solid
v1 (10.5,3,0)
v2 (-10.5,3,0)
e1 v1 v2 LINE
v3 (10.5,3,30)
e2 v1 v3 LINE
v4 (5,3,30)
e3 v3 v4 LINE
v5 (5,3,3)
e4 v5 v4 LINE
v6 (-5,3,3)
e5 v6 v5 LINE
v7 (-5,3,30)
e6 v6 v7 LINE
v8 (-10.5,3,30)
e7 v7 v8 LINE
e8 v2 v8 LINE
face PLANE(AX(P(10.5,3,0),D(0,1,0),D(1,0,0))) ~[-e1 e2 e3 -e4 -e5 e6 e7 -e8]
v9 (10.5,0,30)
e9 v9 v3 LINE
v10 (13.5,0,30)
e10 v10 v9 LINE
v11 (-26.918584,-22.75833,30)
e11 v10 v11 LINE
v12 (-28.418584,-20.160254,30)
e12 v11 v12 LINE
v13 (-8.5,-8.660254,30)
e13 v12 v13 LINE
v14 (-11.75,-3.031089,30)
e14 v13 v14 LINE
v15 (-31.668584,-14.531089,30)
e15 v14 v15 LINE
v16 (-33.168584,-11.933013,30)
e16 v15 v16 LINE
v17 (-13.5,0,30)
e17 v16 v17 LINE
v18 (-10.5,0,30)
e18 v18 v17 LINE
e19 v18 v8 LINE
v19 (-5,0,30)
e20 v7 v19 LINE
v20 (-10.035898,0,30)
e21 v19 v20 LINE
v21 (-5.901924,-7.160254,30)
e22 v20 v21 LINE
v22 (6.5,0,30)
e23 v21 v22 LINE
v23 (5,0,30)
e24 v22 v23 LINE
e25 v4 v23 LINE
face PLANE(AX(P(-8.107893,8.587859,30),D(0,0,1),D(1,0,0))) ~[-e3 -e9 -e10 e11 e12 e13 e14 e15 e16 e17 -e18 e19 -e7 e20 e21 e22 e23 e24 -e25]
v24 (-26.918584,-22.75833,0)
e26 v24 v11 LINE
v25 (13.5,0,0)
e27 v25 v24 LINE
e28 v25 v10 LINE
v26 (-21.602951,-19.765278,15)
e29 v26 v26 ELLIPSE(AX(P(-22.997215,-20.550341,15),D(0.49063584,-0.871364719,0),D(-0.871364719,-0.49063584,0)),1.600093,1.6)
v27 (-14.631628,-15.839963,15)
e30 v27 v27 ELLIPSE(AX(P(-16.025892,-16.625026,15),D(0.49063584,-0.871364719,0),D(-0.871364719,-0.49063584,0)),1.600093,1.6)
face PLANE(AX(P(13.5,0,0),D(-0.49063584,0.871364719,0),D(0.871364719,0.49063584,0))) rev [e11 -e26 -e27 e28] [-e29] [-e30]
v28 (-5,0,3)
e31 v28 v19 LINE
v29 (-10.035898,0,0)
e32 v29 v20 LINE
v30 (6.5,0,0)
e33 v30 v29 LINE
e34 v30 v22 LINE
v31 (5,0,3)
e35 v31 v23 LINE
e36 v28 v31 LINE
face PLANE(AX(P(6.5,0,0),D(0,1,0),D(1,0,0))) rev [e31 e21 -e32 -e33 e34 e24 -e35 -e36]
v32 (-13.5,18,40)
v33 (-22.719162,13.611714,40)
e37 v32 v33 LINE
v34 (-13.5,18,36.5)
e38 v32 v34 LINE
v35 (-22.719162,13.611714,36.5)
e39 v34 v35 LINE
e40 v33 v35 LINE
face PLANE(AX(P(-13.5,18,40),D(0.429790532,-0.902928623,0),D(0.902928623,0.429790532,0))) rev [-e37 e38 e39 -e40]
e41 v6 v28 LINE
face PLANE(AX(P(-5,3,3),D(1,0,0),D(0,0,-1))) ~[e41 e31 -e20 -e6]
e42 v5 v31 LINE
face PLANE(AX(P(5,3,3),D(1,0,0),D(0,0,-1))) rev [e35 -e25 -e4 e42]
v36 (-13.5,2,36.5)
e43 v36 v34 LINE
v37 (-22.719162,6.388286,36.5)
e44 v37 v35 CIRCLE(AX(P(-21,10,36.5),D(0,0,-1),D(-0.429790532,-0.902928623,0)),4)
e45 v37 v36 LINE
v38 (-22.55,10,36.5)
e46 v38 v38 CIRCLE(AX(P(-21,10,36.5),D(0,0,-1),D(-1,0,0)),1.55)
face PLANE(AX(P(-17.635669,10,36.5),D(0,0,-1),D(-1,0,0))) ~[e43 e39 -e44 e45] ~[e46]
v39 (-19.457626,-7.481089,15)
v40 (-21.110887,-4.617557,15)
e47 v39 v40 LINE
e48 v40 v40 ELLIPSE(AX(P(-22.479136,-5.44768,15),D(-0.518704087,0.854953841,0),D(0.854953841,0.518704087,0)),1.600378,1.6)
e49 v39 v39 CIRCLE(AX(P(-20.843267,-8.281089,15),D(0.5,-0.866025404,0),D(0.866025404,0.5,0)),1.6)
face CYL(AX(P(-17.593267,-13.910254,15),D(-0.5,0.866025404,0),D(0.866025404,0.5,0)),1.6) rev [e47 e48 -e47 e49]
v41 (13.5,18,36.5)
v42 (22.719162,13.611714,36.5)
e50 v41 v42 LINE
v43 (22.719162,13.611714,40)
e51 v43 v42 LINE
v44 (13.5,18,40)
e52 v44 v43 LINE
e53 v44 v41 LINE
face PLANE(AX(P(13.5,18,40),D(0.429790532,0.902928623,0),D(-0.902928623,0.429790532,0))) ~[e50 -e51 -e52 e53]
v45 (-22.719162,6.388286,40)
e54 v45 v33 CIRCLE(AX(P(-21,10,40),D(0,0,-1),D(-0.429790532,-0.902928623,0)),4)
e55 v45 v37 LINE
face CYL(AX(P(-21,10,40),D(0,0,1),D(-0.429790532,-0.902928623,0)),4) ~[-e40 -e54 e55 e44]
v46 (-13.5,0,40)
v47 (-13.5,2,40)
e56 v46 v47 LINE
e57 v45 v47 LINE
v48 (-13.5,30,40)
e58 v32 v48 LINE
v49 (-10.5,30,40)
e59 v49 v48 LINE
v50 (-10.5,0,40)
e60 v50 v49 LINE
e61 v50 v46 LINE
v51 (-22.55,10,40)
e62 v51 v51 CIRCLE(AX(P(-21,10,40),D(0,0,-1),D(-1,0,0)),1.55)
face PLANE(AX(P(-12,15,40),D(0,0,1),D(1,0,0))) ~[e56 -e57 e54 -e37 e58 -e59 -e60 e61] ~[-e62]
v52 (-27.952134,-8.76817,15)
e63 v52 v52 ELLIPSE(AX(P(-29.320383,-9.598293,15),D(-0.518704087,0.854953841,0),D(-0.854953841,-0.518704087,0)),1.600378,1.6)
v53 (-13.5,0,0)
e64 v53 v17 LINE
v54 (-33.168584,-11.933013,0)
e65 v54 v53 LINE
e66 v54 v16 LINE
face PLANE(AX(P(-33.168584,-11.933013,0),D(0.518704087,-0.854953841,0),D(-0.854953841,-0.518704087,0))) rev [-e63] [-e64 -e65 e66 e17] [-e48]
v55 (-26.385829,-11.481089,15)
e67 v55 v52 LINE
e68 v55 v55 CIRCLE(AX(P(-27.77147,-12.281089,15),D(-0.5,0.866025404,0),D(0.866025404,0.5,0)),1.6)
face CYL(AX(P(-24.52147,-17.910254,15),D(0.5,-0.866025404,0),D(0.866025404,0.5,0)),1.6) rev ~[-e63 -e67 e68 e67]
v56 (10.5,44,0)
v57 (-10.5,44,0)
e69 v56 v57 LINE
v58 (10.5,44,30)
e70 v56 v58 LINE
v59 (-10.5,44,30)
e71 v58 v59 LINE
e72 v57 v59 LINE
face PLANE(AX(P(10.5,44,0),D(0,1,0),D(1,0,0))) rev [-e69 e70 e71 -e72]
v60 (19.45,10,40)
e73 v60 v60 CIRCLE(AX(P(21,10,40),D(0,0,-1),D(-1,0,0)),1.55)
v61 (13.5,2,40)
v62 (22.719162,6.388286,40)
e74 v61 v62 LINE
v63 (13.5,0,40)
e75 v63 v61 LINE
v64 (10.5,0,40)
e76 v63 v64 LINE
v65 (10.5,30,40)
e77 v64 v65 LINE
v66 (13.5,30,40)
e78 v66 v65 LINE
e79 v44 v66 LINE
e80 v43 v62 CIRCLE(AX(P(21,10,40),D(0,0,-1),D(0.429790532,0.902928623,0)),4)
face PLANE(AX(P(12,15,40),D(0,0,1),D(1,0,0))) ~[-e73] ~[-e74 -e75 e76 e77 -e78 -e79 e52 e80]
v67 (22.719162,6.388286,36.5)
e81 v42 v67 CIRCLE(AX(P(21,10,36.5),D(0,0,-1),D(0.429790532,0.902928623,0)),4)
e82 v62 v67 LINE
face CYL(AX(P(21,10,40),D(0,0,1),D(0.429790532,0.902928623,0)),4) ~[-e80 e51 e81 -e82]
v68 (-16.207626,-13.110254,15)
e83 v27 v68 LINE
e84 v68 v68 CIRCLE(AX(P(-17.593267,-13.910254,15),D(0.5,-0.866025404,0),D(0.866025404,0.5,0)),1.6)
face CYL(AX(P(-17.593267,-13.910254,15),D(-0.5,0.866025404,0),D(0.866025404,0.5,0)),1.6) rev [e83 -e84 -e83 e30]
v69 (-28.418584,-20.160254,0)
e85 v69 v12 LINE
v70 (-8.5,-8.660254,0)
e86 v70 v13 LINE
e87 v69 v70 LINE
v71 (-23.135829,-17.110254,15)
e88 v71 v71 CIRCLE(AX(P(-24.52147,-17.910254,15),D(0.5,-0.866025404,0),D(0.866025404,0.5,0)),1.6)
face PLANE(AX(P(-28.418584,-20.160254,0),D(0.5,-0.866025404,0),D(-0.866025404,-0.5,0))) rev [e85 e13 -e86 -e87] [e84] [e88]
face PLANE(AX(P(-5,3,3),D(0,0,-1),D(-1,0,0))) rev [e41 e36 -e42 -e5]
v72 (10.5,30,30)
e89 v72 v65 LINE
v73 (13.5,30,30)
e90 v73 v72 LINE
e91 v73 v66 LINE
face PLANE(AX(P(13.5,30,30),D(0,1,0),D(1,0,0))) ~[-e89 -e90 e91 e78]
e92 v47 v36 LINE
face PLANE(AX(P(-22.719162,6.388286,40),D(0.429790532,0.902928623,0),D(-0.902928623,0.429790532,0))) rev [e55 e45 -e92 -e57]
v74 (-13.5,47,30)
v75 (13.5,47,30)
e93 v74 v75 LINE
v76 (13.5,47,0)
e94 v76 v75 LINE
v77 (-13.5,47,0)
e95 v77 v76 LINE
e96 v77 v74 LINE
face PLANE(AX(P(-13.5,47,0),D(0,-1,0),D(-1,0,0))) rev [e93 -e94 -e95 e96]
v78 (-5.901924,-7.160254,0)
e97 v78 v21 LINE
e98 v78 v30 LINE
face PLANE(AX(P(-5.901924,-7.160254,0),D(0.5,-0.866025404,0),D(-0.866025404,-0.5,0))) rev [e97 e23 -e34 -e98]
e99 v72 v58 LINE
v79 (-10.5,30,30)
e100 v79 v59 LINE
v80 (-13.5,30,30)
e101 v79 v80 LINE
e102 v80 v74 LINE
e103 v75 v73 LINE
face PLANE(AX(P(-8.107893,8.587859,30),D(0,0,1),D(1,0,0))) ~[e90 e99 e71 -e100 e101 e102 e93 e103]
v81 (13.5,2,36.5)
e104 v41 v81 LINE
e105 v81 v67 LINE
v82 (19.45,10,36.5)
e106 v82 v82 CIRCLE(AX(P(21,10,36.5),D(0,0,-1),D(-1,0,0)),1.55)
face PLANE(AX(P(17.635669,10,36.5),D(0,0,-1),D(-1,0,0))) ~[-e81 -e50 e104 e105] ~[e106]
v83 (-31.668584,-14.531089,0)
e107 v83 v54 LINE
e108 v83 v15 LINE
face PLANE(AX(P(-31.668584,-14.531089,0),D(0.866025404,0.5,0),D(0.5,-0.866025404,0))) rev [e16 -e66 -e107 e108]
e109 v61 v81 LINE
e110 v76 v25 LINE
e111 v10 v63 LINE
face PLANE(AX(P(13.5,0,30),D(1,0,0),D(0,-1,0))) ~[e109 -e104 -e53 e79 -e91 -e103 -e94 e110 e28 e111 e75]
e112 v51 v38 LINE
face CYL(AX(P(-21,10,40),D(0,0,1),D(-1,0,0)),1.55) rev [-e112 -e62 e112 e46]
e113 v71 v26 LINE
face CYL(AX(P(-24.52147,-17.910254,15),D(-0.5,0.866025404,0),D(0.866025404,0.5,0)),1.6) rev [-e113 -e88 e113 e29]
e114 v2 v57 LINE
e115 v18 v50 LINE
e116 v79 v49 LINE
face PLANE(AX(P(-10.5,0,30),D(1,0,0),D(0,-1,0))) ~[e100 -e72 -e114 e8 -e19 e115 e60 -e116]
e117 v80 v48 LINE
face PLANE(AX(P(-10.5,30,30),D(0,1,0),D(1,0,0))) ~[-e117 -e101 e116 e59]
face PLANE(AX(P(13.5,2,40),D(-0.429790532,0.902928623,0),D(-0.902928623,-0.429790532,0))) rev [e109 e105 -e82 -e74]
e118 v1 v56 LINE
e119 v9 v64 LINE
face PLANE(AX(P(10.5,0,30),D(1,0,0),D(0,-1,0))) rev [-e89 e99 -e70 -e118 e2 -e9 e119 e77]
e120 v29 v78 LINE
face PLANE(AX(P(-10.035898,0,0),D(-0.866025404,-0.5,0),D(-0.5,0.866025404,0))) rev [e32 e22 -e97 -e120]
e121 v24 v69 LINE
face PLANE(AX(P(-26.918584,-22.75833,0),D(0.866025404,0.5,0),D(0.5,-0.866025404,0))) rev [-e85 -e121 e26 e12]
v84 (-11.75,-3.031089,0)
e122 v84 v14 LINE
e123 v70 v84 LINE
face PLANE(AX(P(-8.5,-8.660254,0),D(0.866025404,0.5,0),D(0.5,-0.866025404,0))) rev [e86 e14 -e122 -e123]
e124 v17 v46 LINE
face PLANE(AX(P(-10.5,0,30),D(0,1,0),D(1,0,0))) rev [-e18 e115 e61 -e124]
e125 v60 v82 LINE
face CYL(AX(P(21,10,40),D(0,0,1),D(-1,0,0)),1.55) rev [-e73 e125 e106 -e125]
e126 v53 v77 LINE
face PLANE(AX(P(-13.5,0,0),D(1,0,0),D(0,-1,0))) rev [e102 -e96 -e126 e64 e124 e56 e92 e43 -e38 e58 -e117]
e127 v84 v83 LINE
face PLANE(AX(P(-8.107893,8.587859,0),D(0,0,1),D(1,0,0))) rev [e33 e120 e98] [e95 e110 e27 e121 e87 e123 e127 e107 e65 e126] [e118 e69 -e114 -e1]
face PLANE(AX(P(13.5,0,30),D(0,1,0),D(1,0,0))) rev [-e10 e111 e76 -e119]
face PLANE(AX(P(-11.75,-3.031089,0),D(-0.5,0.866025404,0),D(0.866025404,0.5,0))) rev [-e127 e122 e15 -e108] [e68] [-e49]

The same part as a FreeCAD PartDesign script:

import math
import FreeCAD as App
import Part
import Sketcher
from FreeCAD import Vector
Q = App.Units.Quantity

doc = App.newDocument("Part")
body = doc.addObject("PartDesign::Body", "Body")

# Sketch on XY plane
sketch1 = body.newObject("Sketcher::SketchObject", "Sketch")
sketch1.AttachmentSupport = (doc.getObject("XY_Plane"), [""])
sketch1.MapMode = "FlatFace"
sketch1.addGeometry(Part.LineSegment(Vector(13.5, 0, 0), Vector(13.5, 47, 0)), False)
sketch1.addGeometry(Part.LineSegment(Vector(13.5, 47, 0), Vector(-13.5, 47, 0)), False)
sketch1.addGeometry(Part.LineSegment(Vector(-13.5, 47, 0), Vector(-13.5, 0, 0)), False)
sketch1.addGeometry(Part.LineSegment(Vector(-13.5, 0, 0), Vector(26.9, -22.8, 0)), False)
sketch1.addGeometry(Part.LineSegment(Vector(26.9, -22.8, 0), Vector(28.4, -20.2, 0)), False)
sketch1.addGeometry(Part.LineSegment(Vector(28.4, -20.2, 0), Vector(8.5, -8.7, 0)), False)
sketch1.addGeometry(Part.LineSegment(Vector(8.5, -8.7, 0), Vector(11.8, -3, 0)), False)
sketch1.addGeometry(Part.LineSegment(Vector(11.8, -3, 0), Vector(31.7, -14.5, 0)), False)
sketch1.addGeometry(Part.LineSegment(Vector(31.7, -14.5, 0), Vector(33.2, -11.9, 0)), False)
sketch1.addGeometry(Part.LineSegment(Vector(33.2, -11.9, 0), Vector(13.5, 0, 0)), False)
sketch1.addGeometry(Part.LineSegment(Vector(5.9, -7.2, 0), Vector(-6.5, 0, 0)), False)
sketch1.addGeometry(Part.LineSegment(Vector(-6.5, 0, 0), Vector(10, 0, 0)), False)
sketch1.addGeometry(Part.LineSegment(Vector(10, 0, 0), Vector(5.9, -7.2, 0)), False)
sketch1.addGeometry(Part.LineSegment(Vector(10.5, 3, 0), Vector(-10.5, 3, 0)), False)
sketch1.addGeometry(Part.LineSegment(Vector(-10.5, 3, 0), Vector(-10.5, 44, 0)), False)
sketch1.addGeometry(Part.LineSegment(Vector(-10.5, 44, 0), Vector(10.5, 44, 0)), False)
sketch1.addGeometry(Part.LineSegment(Vector(10.5, 44, 0), Vector(10.5, 3, 0)), False)
sketch1.addConstraint(Sketcher.Constraint("Coincident", 0, 2, 1, 1))
sketch1.addConstraint(Sketcher.Constraint("Coincident", 1, 2, 2, 1))
sketch1.addConstraint(Sketcher.Constraint("Coincident", 2, 2, 3, 1))
sketch1.addConstraint(Sketcher.Constraint("Coincident", 3, 2, 4, 1))
sketch1.addConstraint(Sketcher.Constraint("Coincident", 4, 2, 5, 1))
sketch1.addConstraint(Sketcher.Constraint("Coincident", 5, 2, 6, 1))
sketch1.addConstraint(Sketcher.Constraint("Coincident", 6, 2, 7, 1))
sketch1.addConstraint(Sketcher.Constraint("Coincident", 7, 2, 8, 1))
sketch1.addConstraint(Sketcher.Constraint("Coincident", 8, 2, 9, 1))
sketch1.addConstraint(Sketcher.Constraint("Coincident", 9, 2, 0, 1))
sketch1.addConstraint(Sketcher.Constraint("Coincident", 10, 2, 11, 1))
sketch1.addConstraint(Sketcher.Constraint("Coincident", 11, 2, 12, 1))
sketch1.addConstraint(Sketcher.Constraint("Coincident", 12, 2, 10, 1))
sketch1.addConstraint(Sketcher.Constraint("Coincident", 13, 2, 14, 1))
sketch1.addConstraint(Sketcher.Constraint("Coincident", 14, 2, 15, 1))
sketch1.addConstraint(Sketcher.Constraint("Coincident", 15, 2, 16, 1))
sketch1.addConstraint(Sketcher.Constraint("Coincident", 16, 2, 13, 1))
sketch1.addConstraint(Sketcher.Constraint("Vertical", 0))
sketch1.addConstraint(Sketcher.Constraint("Horizontal", 1))
sketch1.addConstraint(Sketcher.Constraint("Vertical", 2))
sketch1.addConstraint(Sketcher.Constraint("Horizontal", 11))
sketch1.addConstraint(Sketcher.Constraint("Horizontal", 13))
sketch1.addConstraint(Sketcher.Constraint("Vertical", 14))
sketch1.addConstraint(Sketcher.Constraint("Horizontal", 15))
sketch1.addConstraint(Sketcher.Constraint("Vertical", 16))
sketch1.addConstraint(Sketcher.Constraint("Symmetric", 2, 2, 9, 2, -1, 1))
sketch1.addConstraint(Sketcher.Constraint("PointOnObject", 2, 2, -1))
sketch1.addConstraint(Sketcher.Constraint("PointOnObject", 10, 2, -1))
sketch1.addConstraint(Sketcher.Constraint("Perpendicular", 4, 5))
sketch1.addConstraint(Sketcher.Constraint("Perpendicular", 5, 6))
sketch1.addConstraint(Sketcher.Constraint("Perpendicular", 6, 7))
sketch1.addConstraint(Sketcher.Constraint("Perpendicular", 7, 8))
sketch1.addConstraint(Sketcher.Constraint("Perpendicular", 8, 10))
sketch1.addConstraint(Sketcher.Constraint("Perpendicular", 10, 12))
sketch1.addConstraint(Sketcher.Constraint("Equal", 5, 7))
sketch1.addConstraint(Sketcher.Constraint("Equal", 4, 8))
sketch1.addConstraint(Sketcher.Constraint("DistanceX", 1, 2, 1, 1, 27.0))
sketch1.addConstraint(Sketcher.Constraint("DistanceX", 13, 2, 13, 1, 21.0))
sketch1.addConstraint(Sketcher.Constraint("DistanceY", 0, 1, 0, 2, 47.0))
sketch1.addConstraint(Sketcher.Constraint("DistanceY", 14, 1, 14, 2, 41.0))
sketch1.addConstraint(Sketcher.Constraint("Angle", 4, Q("60 deg")))
sketch1.addConstraint(Sketcher.Constraint("Distance", 4, 3.0))
sketch1.addConstraint(Sketcher.Constraint("Distance", 5, 23.0))
sketch1.addConstraint(Sketcher.Constraint("DistanceY", -1, 1, 13, 2, 3.0))
sketch1.addConstraint(Sketcher.Constraint("DistanceX", 2, 2, 5, 2, 22.0))
sketch1.addConstraint(Sketcher.Constraint("DistanceX", 2, 2, 10, 2, 7.0))
sketch1.addConstraint(Sketcher.Constraint("DistanceX", 2, 2, 13, 2, 3.0))
sketch1.addConstraint(Sketcher.Constraint("Distance", 6, 6.5))
sketch1.addConstraint(Sketcher.Constraint("DistanceY", 5, 2, 12, 2, 1.5))
sketch1.addConstraint(Sketcher.Constraint("DistanceX", 11, 1, 11, 2, 16.535898))
pad1 = body.newObject("PartDesign::Pad", "Pad")
pad1.Profile = sketch1
pad1.Length = 30

# Sketch on XZ plane
sketch2 = body.newObject("Sketcher::SketchObject", "Sketch001")
sketch2.AttachmentSupport = (doc.getObject("XZ_Plane"), [""])
sketch2.MapMode = "FlatFace"
sketch2.AttachmentOffset = App.Placement(Vector(0, 0, -3), App.Rotation())
sketch2.addGeometry(Part.LineSegment(Vector(5, 30, 0), Vector(5, 3, 0)), False)
sketch2.addGeometry(Part.LineSegment(Vector(5, 3, 0), Vector(-5, 3, 0)), False)
sketch2.addGeometry(Part.LineSegment(Vector(-5, 3, 0), Vector(-5, 30, 0)), False)
sketch2.addGeometry(Part.LineSegment(Vector(-5, 30, 0), Vector(5, 30, 0)), False)
sketch2.addConstraint(Sketcher.Constraint("Coincident", 0, 2, 1, 1))
sketch2.addConstraint(Sketcher.Constraint("Coincident", 1, 2, 2, 1))
sketch2.addConstraint(Sketcher.Constraint("Coincident", 2, 2, 3, 1))
sketch2.addConstraint(Sketcher.Constraint("Coincident", 3, 2, 0, 1))
sketch2.addConstraint(Sketcher.Constraint("Vertical", 0))
sketch2.addConstraint(Sketcher.Constraint("Horizontal", 1))
sketch2.addConstraint(Sketcher.Constraint("Vertical", 2))
sketch2.addConstraint(Sketcher.Constraint("Horizontal", 3))
sketch2.addConstraint(Sketcher.Constraint("DistanceX", 1, 2, 1, 1, 10.0))
sketch2.addConstraint(Sketcher.Constraint("DistanceY", 0, 2, 0, 1, 27.0))
sketch2.addConstraint(Sketcher.Constraint("DistanceX", -1, 1, 0, 2, 5.0))
sketch2.addConstraint(Sketcher.Constraint("DistanceY", -1, 1, 0, 2, 3.0))
pocket1 = body.newObject("PartDesign::Pocket", "Pocket")
pocket1.Profile = sketch2
pocket1.Length = 3.1
pocket1.Reversed = True

# Sketch on an angled plane
sketch3 = body.newObject("Sketcher::SketchObject", "Sketch002")
sketch3.Placement = App.Placement(Vector(-1.625, -2.814583, 0), App.Rotation(Vector(-0.866025404, 0.5, 0), Vector(0, 0, 1), Vector(0.5, 0.866025404, 0), "ZXY"))
sketch3.addGeometry(Part.Circle(Vector(-30.2, 15, 0), Vector(0, 0, 1), 1.6), False)
sketch3.addGeometry(Part.Circle(Vector(-22.2, 15, 0), Vector(0, 0, 1), 1.6), False)
sketch3.addConstraint(Sketcher.Constraint("Equal", 0, 1))
sketch3.addConstraint(Sketcher.Constraint("Horizontal", 0, 3, 1, 3))
sketch3.addConstraint(Sketcher.Constraint("Diameter", 0, 3.2))
sketch3.addConstraint(Sketcher.Constraint("DistanceY", -1, 1, 0, 3, 15.0))
sketch3.addConstraint(Sketcher.Constraint("DistanceX", 0, 3, 1, 3, 8.0))
sketch3.addConstraint(Sketcher.Constraint("DistanceX", 0, 3, -1, 1, 30.191343))
pocket2 = body.newObject("PartDesign::Pocket", "Pocket001")
pocket2.Profile = sketch3
pocket2.Length = 25
pocket2.Midplane = True

# Sketch on XY plane
sketch4 = body.newObject("Sketcher::SketchObject", "Sketch003")
sketch4.AttachmentSupport = (doc.getObject("XY_Plane"), [""])
sketch4.MapMode = "FlatFace"
sketch4.AttachmentOffset = App.Placement(Vector(0, 0, 30), App.Rotation())
sketch4.addGeometry(Part.LineSegment(Vector(-13.5, 30, 0), Vector(-13.5, 0, 0)), False)
sketch4.addGeometry(Part.LineSegment(Vector(-13.5, 0, 0), Vector(-10.5, 0, 0)), False)
sketch4.addGeometry(Part.LineSegment(Vector(-10.5, 0, 0), Vector(-10.5, 30, 0)), False)
sketch4.addGeometry(Part.LineSegment(Vector(-10.5, 30, 0), Vector(-13.5, 30, 0)), False)
sketch4.addGeometry(Part.LineSegment(Vector(10.5, 30, 0), Vector(10.5, 0, 0)), False)
sketch4.addGeometry(Part.LineSegment(Vector(10.5, 0, 0), Vector(13.5, 0, 0)), False)
sketch4.addGeometry(Part.LineSegment(Vector(13.5, 0, 0), Vector(13.5, 30, 0)), False)
sketch4.addGeometry(Part.LineSegment(Vector(13.5, 30, 0), Vector(10.5, 30, 0)), False)
sketch4.addConstraint(Sketcher.Constraint("Coincident", 0, 2, 1, 1))
sketch4.addConstraint(Sketcher.Constraint("Coincident", 1, 2, 2, 1))
sketch4.addConstraint(Sketcher.Constraint("Coincident", 2, 2, 3, 1))
sketch4.addConstraint(Sketcher.Constraint("Coincident", 3, 2, 0, 1))
sketch4.addConstraint(Sketcher.Constraint("Coincident", 4, 2, 5, 1))
sketch4.addConstraint(Sketcher.Constraint("Coincident", 5, 2, 6, 1))
sketch4.addConstraint(Sketcher.Constraint("Coincident", 6, 2, 7, 1))
sketch4.addConstraint(Sketcher.Constraint("Coincident", 7, 2, 4, 1))
sketch4.addConstraint(Sketcher.Constraint("Vertical", 0))
sketch4.addConstraint(Sketcher.Constraint("Horizontal", 1))
sketch4.addConstraint(Sketcher.Constraint("Vertical", 2))
sketch4.addConstraint(Sketcher.Constraint("Horizontal", 3))
sketch4.addConstraint(Sketcher.Constraint("Vertical", 4))
sketch4.addConstraint(Sketcher.Constraint("Horizontal", 5))
sketch4.addConstraint(Sketcher.Constraint("Vertical", 6))
sketch4.addConstraint(Sketcher.Constraint("Horizontal", 7))
sketch4.addConstraint(Sketcher.Constraint("Symmetric", 1, 2, 4, 2, -1, 1))
sketch4.addConstraint(Sketcher.Constraint("Symmetric", 0, 2, 5, 2, -2))
sketch4.addConstraint(Sketcher.Constraint("Horizontal", 3, 2, 6, 2))
sketch4.addConstraint(Sketcher.Constraint("DistanceX", 1, 1, 1, 2, 3.0))
sketch4.addConstraint(Sketcher.Constraint("DistanceY", 0, 2, 0, 1, 30.0))
sketch4.addConstraint(Sketcher.Constraint("DistanceX", 1, 2, 4, 2, 21.0))
pad2 = body.newObject("PartDesign::Pad", "Pad001")
pad2.Profile = sketch4
pad2.Length = 10

# Sketch on XY plane
sketch5 = body.newObject("Sketcher::SketchObject", "Sketch004")
sketch5.AttachmentSupport = (doc.getObject("XY_Plane"), [""])
sketch5.MapMode = "FlatFace"
sketch5.AttachmentOffset = App.Placement(Vector(0, 0, 40), App.Rotation())
sketch5.addGeometry(Part.LineSegment(Vector(-13.5, 2, 0), Vector(-13.5, 18, 0)), False)
sketch5.addGeometry(Part.LineSegment(Vector(-13.5, 18, 0), Vector(-22.7, 13.6, 0)), False)
sketch5.addGeometry(Part.ArcOfCircle(Part.Circle(Vector(-21, 10, 0), Vector(0, 0, 1), 4), math.radians(115), math.radians(245)), False)
sketch5.addGeometry(Part.LineSegment(Vector(-22.7, 6.4, 0), Vector(-13.5, 2, 0)), False)
sketch5.addGeometry(Part.Circle(Vector(-21, 10, 0), Vector(0, 0, 1), 1.6), False)
sketch5.addGeometry(Part.LineSegment(Vector(13.5, 2, 0), Vector(22.7, 6.4, 0)), False)
sketch5.addGeometry(Part.ArcOfCircle(Part.Circle(Vector(21, 10, 0), Vector(0, 0, 1), 4), math.radians(-65), math.radians(65)), False)
sketch5.addGeometry(Part.LineSegment(Vector(22.7, 13.6, 0), Vector(13.5, 18, 0)), False)
sketch5.addGeometry(Part.LineSegment(Vector(13.5, 18, 0), Vector(13.5, 2, 0)), False)
sketch5.addGeometry(Part.Circle(Vector(21, 10, 0), Vector(0, 0, 1), 1.6), False)
sketch5.addConstraint(Sketcher.Constraint("Coincident", 0, 2, 1, 1))
sketch5.addConstraint(Sketcher.Constraint("Tangent", 1, 2, 2, 1))
sketch5.addConstraint(Sketcher.Constraint("Tangent", 2, 2, 3, 1))
sketch5.addConstraint(Sketcher.Constraint("Coincident", 3, 2, 0, 1))
sketch5.addConstraint(Sketcher.Constraint("Tangent", 5, 2, 6, 1))
sketch5.addConstraint(Sketcher.Constraint("Tangent", 6, 2, 7, 1))
sketch5.addConstraint(Sketcher.Constraint("Coincident", 7, 2, 8, 1))
sketch5.addConstraint(Sketcher.Constraint("Coincident", 8, 2, 5, 1))
sketch5.addConstraint(Sketcher.Constraint("Vertical", 0))
sketch5.addConstraint(Sketcher.Constraint("Vertical", 8))
sketch5.addConstraint(Sketcher.Constraint("Coincident", 4, 3, 2, 3))
sketch5.addConstraint(Sketcher.Constraint("Coincident", 9, 3, 6, 3))
sketch5.addConstraint(Sketcher.Constraint("Equal", 2, 6))
sketch5.addConstraint(Sketcher.Constraint("Equal", 4, 9))
sketch5.addConstraint(Sketcher.Constraint("Symmetric", 2, 3, 6, 3, -2))
sketch5.addConstraint(Sketcher.Constraint("Symmetric", 0, 2, 7, 2, -2))
sketch5.addConstraint(Sketcher.Constraint("Parallel", 1, 5))
sketch5.addConstraint(Sketcher.Constraint("Parallel", 3, 7))
sketch5.addConstraint(Sketcher.Constraint("Radius", 2, 4.0))
sketch5.addConstraint(Sketcher.Constraint("Diameter", 4, 3.1))
sketch5.addConstraint(Sketcher.Constraint("DistanceY", 0, 1, 0, 2, 16.0))
sketch5.addConstraint(Sketcher.Constraint("DistanceX", 2, 3, -1, 1, 21.0))
sketch5.addConstraint(Sketcher.Constraint("DistanceY", -1, 1, 2, 3, 10.0))
sketch5.addConstraint(Sketcher.Constraint("DistanceX", 0, 2, 7, 2, 27.0))
pad3 = body.newObject("PartDesign::Pad", "Pad002")
pad3.Profile = sketch5
pad3.Length = 3.5
pad3.Reversed = True
body2 = doc.addObject("PartDesign::Body", "Body001")
doc.recompute()

mirroring = doc.addObject("Part::Mirroring", "Mirroring")
mirroring.Source = body
mirroring.Base = Vector(0, 0, 0)
mirroring.Normal = Vector(1, 0, 0)
body2.BaseFeature = mirroring
doc.recompute()
body.Visibility = False
mirroring.Visibility = False

doc.recompute()
